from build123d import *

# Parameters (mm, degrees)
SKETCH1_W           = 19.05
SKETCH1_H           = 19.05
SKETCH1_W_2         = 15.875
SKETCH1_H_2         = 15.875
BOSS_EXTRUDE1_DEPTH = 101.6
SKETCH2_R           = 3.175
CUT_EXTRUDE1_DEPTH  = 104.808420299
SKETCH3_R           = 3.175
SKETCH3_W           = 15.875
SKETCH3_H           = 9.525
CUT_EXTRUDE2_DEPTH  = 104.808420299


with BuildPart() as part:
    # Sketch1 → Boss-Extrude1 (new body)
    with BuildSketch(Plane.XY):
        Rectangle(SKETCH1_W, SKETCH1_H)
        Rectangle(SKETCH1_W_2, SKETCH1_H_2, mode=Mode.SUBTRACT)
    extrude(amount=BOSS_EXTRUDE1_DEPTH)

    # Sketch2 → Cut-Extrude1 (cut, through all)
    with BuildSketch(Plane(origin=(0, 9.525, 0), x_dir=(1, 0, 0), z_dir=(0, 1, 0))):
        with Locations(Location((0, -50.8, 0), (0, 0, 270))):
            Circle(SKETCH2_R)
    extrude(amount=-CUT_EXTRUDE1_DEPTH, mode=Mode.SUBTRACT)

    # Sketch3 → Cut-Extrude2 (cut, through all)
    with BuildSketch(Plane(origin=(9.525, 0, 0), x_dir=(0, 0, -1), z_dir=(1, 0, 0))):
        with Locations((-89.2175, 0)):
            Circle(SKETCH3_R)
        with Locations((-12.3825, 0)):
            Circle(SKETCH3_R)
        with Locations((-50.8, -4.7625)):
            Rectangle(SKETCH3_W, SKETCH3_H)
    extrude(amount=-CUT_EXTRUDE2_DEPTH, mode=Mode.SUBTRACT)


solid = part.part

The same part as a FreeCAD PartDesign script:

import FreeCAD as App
import Part
import Sketcher
from FreeCAD import Vector
Q = App.Units.Quantity

doc = App.newDocument("Part")
body = doc.addObject("PartDesign::Body", "Body")

# Sketch on XY plane
sketch1 = body.newObject("Sketcher::SketchObject", "Sketch")
sketch1.AttachmentSupport = (doc.getObject("XY_Plane"), [""])
sketch1.MapMode = "FlatFace"
sketch1.addGeometry([
    Part.LineSegment(Vector(-10, 10, 0), Vector(-10, -10, 0)),  # 0
    Part.LineSegment(Vector(-10, -10, 0), Vector(10, -10, 0)),  # 1
    Part.LineSegment(Vector(10, -10, 0), Vector(10, 10, 0)),  # 2
    Part.LineSegment(Vector(10, 10, 0), Vector(-10, 10, 0)),  # 3
    Part.LineSegment(Vector(8, -8, 0), Vector(-8, -8, 0)),  # 4
    Part.LineSegment(Vector(-8, -8, 0), Vector(-8, 8, 0)),  # 5
    Part.LineSegment(Vector(-8, 8, 0), Vector(8, 8, 0)),  # 6
    Part.LineSegment(Vector(8, 8, 0), Vector(8, -8, 0)),  # 7
], False)
sketch1.addConstraint([
    Sketcher.Constraint("Coincident", 0, 2, 1, 1),
    Sketcher.Constraint("Coincident", 1, 2, 2, 1),
    Sketcher.Constraint("Coincident", 2, 2, 3, 1),
    Sketcher.Constraint("Coincident", 3, 2, 0, 1),
    Sketcher.Constraint("Coincident", 4, 2, 5, 1),
    Sketcher.Constraint("Coincident", 5, 2, 6, 1),
    Sketcher.Constraint("Coincident", 6, 2, 7, 1),
    Sketcher.Constraint("Coincident", 7, 2, 4, 1),
    Sketcher.Constraint("Vertical", 0),
    Sketcher.Constraint("Horizontal", 1),
    Sketcher.Constraint("Vertical", 2),
    Sketcher.Constraint("Horizontal", 3),
    Sketcher.Constraint("Horizontal", 4),
    Sketcher.Constraint("Vertical", 5),
    Sketcher.Constraint("Horizontal", 6),
    Sketcher.Constraint("Vertical", 7),
    Sketcher.Constraint("Symmetric", 0, 2, 2, 2, -1, 1),
    Sketcher.Constraint("Symmetric", 4, 2, 6, 2, -1, 1),
    Sketcher.Constraint("Equal", 3, 0),
    Sketcher.Constraint("Equal", 6, 5),
    Sketcher.Constraint("DistanceX", 1, 1, 1, 2, Q("0.75 in")),
    Sketcher.Constraint("DistanceX", 4, 2, 4, 1, Q("0.625 in")),
])
pad1 = body.newObject("PartDesign::Pad", "Pad")
pad1.Profile = sketch1
pad1.Length = Q("4 in")

# Sketch on XZ plane
sketch2 = body.newObject("Sketcher::SketchObject", "Sketch001")
sketch2.AttachmentSupport = (doc.getObject("XZ_Plane"), [""])
sketch2.MapMode = "FlatFace"
sketch2.AttachmentOffset = App.Placement(Vector(0, 0, -0.375 * 25.4), App.Rotation())
sketch2.addGeometry(Part.Circle(Vector(0, 50.8, 0), Vector(0, 0, 1), 3.2), False)
sketch2.addConstraint([
    Sketcher.Constraint("PointOnObject", 0, 3, -2),
    Sketcher.Constraint("Diameter", 0, Q("0.25 in")),
    Sketcher.Constraint("DistanceY", -1, 1, 0, 3, Q("2 in")),
])
pocket1 = body.newObject("PartDesign::Pocket", "Pocket")
pocket1.Profile = sketch2
pocket1.Type = "ThroughAll"
pocket1.Reversed = True

# Sketch on YZ plane
sketch3 = body.newObject("Sketcher::SketchObject", "Sketch002")
sketch3.AttachmentSupport = (doc.getObject("YZ_Plane"), [""])
sketch3.MapMode = "FlatFace"
sketch3.AttachmentOffset = App.Placement(Vector(0, 0, 0.375 * 25.4), App.Rotation())
sketch3.addGeometry([
    Part.Circle(Vector(0, 89.2, 0), Vector(0, 0, 1), 3.2),  # 0
    Part.Circle(Vector(0, 12.4, 0), Vector(0, 0, 1), 3.2),  # 1
    Part.LineSegment(Vector(0, 58.7, 0), Vector(-9.5, 58.7, 0)),  # 2
    Part.LineSegment(Vector(-9.5, 58.7, 0), Vector(-9.5, 42.9, 0)),  # 3
    Part.LineSegment(Vector(-9.5, 42.9, 0), Vector(0, 42.9, 0)),  # 4
    Part.LineSegment(Vector(0, 42.9, 0), Vector(0, 58.7, 0)),  # 5
], False)
sketch3.addConstraint([
    Sketcher.Constraint("Coincident", 2, 2, 3, 1),
    Sketcher.Constraint("Coincident", 3, 2, 4, 1),
    Sketcher.Constraint("Coincident", 4, 2, 5, 1),
    Sketcher.Constraint("Coincident", 5, 2, 2, 1),
    Sketcher.Constraint("Horizontal", 2),
    Sketcher.Constraint("Vertical", 3),
    Sketcher.Constraint("Horizontal", 4),
    Sketcher.Constraint("Vertical", 5),
    Sketcher.Constraint("Equal", 0, 1),
    Sketcher.Constraint("PointOnObject", 0, 3, -2),
    Sketcher.Constraint("PointOnObject", 1, 3, -2),
    Sketcher.Constraint("PointOnObject", 4, 2, -2),
    Sketcher.Constraint("Diameter", 0, Q("0.25 in")),
    Sketcher.Constraint("DistanceY", 2, 2, 0, 3, Q("1.2 in")),
    Sketcher.Constraint("DistanceY", 1, 3, 3, 2, Q("1.2 in")),
    Sketcher.Constraint("DistanceX", 2, 2, 2, 1, Q("0.375 in")),
    Sketcher.Constraint("DistanceY", 3, 2, 3, 1, Q("0.625 in")),
    Sketcher.Constraint("DistanceY", -1, 1, 2, 2, Q("2.3125 in")),
])
pocket2 = body.newObject("PartDesign::Pocket", "Pocket001")
pocket2.Profile = sketch3
pocket2.Type = "ThroughAll"

doc.recompute()
